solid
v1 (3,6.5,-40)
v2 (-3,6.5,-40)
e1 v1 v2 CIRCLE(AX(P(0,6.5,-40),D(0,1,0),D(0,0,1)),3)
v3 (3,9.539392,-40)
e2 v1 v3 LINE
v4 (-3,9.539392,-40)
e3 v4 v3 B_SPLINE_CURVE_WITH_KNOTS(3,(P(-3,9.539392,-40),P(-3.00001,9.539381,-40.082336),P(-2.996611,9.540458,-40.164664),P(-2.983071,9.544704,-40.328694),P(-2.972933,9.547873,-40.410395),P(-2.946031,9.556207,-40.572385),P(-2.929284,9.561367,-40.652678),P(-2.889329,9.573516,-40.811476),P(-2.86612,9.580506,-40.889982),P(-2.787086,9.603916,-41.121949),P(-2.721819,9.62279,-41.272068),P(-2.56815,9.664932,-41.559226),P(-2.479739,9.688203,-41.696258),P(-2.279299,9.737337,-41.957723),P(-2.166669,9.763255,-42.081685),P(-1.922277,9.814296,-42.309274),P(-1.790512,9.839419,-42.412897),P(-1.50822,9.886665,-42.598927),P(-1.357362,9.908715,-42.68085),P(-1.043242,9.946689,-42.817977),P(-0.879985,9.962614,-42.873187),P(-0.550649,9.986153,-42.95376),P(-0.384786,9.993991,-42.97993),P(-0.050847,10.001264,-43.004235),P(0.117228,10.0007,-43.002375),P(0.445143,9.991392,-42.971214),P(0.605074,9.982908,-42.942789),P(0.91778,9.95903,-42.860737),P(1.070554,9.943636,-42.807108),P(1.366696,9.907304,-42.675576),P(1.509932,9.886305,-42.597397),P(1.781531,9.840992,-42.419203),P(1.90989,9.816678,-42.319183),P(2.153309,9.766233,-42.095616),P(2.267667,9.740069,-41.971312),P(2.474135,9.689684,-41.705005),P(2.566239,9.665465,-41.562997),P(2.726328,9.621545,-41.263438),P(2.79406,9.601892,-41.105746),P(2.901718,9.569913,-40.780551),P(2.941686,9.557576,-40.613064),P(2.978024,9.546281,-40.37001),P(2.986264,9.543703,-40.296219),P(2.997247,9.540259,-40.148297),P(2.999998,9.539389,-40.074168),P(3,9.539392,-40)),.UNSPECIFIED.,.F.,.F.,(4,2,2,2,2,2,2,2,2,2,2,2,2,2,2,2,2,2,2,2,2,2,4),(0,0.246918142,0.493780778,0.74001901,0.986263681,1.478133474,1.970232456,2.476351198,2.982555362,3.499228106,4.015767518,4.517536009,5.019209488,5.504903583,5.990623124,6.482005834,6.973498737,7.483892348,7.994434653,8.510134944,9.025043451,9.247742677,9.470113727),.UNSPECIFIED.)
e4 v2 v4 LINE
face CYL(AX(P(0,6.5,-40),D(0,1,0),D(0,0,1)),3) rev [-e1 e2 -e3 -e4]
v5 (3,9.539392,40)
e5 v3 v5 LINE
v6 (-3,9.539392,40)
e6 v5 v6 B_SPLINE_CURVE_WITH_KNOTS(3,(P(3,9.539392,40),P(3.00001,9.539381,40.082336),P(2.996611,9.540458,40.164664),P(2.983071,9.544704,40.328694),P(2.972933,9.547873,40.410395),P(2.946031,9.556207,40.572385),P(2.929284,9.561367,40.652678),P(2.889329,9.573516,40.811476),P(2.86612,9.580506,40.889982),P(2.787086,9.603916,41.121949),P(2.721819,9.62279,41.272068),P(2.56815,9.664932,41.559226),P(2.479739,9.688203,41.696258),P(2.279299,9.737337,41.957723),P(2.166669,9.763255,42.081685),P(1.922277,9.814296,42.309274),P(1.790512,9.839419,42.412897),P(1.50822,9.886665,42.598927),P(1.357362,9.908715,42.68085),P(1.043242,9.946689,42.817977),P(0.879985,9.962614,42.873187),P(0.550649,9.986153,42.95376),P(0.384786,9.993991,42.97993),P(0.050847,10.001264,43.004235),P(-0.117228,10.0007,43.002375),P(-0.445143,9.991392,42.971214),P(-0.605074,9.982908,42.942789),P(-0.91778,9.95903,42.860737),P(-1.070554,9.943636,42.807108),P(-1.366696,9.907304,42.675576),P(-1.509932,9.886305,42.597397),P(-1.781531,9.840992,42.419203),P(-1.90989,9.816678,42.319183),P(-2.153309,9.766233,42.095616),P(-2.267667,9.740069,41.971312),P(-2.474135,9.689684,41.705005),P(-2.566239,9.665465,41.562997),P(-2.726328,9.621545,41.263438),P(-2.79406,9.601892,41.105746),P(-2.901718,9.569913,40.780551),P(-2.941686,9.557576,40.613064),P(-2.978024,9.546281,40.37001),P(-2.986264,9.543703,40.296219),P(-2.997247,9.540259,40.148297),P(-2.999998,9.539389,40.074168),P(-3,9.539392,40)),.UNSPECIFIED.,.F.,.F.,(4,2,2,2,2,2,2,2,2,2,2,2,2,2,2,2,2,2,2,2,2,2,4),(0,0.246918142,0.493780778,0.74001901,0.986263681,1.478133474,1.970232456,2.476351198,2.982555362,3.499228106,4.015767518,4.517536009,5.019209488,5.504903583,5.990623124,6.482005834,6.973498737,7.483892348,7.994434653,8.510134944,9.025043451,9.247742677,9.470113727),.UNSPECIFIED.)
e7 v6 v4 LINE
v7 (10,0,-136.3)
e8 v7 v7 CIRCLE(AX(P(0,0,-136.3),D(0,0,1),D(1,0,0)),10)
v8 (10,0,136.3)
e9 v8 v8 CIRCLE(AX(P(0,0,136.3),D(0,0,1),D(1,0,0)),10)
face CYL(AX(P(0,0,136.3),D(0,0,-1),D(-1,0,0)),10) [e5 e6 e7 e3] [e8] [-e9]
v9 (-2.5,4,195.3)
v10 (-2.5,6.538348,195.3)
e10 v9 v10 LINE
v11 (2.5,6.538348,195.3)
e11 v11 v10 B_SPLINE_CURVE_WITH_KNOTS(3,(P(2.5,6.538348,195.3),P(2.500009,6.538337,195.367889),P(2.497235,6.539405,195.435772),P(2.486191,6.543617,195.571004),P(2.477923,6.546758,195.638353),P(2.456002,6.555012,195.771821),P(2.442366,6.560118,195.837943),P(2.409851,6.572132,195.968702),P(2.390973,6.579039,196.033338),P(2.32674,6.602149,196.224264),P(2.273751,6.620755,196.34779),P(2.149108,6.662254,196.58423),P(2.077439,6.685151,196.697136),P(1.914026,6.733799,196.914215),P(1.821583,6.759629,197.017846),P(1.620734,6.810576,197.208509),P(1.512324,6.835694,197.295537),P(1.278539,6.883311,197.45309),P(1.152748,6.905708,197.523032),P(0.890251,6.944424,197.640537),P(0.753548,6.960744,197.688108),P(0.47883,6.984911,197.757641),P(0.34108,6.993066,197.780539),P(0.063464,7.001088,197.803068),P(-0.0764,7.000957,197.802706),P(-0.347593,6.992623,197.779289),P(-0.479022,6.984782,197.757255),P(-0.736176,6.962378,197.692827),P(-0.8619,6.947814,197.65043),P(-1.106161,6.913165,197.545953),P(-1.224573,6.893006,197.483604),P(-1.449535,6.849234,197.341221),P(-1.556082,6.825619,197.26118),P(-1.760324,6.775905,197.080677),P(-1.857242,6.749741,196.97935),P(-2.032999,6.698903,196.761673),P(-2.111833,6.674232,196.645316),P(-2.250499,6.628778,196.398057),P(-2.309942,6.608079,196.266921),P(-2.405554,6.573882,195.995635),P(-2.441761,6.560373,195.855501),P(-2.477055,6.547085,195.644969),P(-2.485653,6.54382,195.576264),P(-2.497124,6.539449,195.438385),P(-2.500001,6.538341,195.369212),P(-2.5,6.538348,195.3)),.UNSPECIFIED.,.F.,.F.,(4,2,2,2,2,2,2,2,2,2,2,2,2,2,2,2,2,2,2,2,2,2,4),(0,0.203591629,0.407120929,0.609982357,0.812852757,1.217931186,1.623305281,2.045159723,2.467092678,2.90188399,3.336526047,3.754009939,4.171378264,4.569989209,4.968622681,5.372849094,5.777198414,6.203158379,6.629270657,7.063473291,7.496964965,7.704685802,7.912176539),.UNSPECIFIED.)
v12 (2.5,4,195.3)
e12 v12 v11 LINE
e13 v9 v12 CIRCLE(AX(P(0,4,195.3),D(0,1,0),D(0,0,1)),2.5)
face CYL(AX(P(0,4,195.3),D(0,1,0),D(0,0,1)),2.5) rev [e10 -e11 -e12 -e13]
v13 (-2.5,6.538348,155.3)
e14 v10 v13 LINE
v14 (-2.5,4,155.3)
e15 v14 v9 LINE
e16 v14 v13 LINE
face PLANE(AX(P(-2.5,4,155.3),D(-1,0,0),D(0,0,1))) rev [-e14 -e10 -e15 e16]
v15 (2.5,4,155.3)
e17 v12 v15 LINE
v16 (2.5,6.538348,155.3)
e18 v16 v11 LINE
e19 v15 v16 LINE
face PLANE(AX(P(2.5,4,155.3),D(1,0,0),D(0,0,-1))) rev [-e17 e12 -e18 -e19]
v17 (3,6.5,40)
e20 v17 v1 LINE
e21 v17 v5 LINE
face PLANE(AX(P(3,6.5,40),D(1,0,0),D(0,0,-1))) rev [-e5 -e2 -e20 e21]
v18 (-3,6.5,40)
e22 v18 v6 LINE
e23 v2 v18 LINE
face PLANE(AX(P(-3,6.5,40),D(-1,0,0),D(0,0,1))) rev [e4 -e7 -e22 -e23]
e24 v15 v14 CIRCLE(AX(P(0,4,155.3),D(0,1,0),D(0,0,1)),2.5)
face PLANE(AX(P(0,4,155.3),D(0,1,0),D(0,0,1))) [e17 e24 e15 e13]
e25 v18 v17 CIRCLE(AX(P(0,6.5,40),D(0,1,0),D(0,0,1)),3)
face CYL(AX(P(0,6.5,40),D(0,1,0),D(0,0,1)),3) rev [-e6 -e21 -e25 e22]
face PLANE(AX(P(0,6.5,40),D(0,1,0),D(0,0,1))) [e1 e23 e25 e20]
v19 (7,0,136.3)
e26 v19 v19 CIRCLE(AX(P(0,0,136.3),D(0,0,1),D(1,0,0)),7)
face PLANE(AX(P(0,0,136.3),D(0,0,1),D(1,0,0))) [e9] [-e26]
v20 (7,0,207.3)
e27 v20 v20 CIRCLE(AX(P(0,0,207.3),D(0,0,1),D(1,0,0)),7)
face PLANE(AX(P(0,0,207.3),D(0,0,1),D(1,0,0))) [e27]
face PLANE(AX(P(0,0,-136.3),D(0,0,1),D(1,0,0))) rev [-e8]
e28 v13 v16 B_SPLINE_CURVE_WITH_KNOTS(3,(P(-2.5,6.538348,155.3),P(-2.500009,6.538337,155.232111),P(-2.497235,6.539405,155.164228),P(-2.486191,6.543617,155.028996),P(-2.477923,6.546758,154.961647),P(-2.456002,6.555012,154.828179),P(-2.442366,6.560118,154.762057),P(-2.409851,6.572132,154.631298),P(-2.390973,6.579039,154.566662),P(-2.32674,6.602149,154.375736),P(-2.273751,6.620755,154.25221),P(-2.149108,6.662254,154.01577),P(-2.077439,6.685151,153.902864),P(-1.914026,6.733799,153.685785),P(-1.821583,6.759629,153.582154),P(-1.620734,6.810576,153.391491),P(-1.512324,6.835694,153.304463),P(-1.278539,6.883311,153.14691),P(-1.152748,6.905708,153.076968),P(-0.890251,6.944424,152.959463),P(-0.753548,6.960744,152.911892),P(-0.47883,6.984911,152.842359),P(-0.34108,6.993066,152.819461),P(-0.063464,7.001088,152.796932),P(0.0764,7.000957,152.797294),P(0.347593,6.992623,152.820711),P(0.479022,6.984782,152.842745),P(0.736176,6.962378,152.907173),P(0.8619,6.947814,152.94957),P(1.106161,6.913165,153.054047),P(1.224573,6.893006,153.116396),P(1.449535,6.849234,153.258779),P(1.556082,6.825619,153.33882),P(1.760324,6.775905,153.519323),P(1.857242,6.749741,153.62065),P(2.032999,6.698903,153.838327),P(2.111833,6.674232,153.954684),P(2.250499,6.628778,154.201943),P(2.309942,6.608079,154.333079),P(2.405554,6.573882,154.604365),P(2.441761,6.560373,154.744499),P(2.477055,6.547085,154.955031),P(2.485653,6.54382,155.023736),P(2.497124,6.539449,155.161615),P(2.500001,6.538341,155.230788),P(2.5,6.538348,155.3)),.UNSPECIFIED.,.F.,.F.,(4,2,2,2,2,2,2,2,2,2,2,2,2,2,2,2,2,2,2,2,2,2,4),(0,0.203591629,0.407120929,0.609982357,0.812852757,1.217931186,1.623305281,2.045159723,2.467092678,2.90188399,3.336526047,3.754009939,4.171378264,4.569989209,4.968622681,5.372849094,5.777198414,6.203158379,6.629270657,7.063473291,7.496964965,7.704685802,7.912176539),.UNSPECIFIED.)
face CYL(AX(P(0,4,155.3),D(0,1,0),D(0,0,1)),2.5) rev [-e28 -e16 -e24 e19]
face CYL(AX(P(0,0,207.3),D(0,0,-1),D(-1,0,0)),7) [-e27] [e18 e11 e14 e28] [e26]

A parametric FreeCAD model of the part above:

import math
import FreeCAD as App
import Part
import Sketcher

V = App.Vector

doc = App.newDocument("Part")
body = doc.addObject("PartDesign::Body", "Body")

# Sketch on XY plane
sketch1 = doc.addObject("Sketcher::SketchObject", "Sketch")
body.addObject(sketch1)
sketch1.AttachmentSupport = (doc.XY_Plane, [""])
sketch1.MapMode = "FlatFace"
sketch1.addGeometry(Part.Circle(V(0, 0, 0), V(0, 0, 1), 10), False)
sketch1.addConstraint([
    Sketcher.Constraint("Coincident", 0, 3, -1, 1),
    Sketcher.Constraint("Diameter", 0, 20.0),
])
pad1 = doc.addObject("PartDesign::Pad", "Pad")
body.addObject(pad1)
pad1.Profile = sketch1
pad1.Length = 272.6
pad1.Midplane = True

# Sketch on XY plane
sketch2 = doc.addObject("Sketcher::SketchObject", "Sketch001")
body.addObject(sketch2)
sketch2.AttachmentSupport = (doc.XY_Plane, [""])
sketch2.MapMode = "FlatFace"
sketch2.AttachmentOffset = App.Placement(V(0, 0, 136.3), App.Rotation())
sketch2.addGeometry(Part.Circle(V(0, 0, 0), V(0, 0, 1), 7), False)
sketch2.addConstraint([
    Sketcher.Constraint("Coincident", 0, 3, -1, 1),
    Sketcher.Constraint("Diameter", 0, 14.0),
])
pad2 = doc.addObject("PartDesign::Pad", "Pad001")
body.addObject(pad2)
pad2.Profile = sketch2
pad2.Length = 71

# Sketch on XZ plane
sketch3 = doc.addObject("Sketcher::SketchObject", "Sketch002")
body.addObject(sketch3)
sketch3.AttachmentSupport = (doc.XZ_Plane, [""])
sketch3.MapMode = "FlatFace"
sketch3.AttachmentOffset = App.Placement(V(0, 0, -7), App.Rotation())
sketch3.addGeometry([
    Part.LineSegment(V(2.5, 195.3, 0), V(2.5, 155.3, 0)),
    Part.ArcOfCircle(Part.Circle(V(0, 155.3, 0), V(0, 0, 1), 2.5), math.radians(180), math.radians(360)),
    Part.LineSegment(V(-2.5, 155.3, 0), V(-2.5, 195.3, 0)),
    Part.ArcOfCircle(Part.Circle(V(0, 195.3, 0), V(0, 0, 1), 2.5), math.radians(0), math.radians(180)),
], False)
sketch3.addConstraint([
    Sketcher.Constraint("Tangent", 0, 2, 1, 2),
    Sketcher.Constraint("Tangent", 1, 1, 2, 1),
    Sketcher.Constraint("Tangent", 2, 2, 3, 2),
    Sketcher.Constraint("Tangent", 3, 1, 0, 1),
    Sketcher.Constraint("Vertical", 0),
    Sketcher.Constraint("Vertical", 2),
    Sketcher.Constraint("PointOnObject", 1, 3, -2),
    Sketcher.Constraint("Radius", 1, 2.5),
    Sketcher.Constraint("DistanceY", 0, 2, 0, 1, 40.0),
    Sketcher.Constraint("DistanceY", -1, 1, 1, 3, 155.3),
])
pocket1 = doc.addObject("PartDesign::Pocket", "Pocket")
body.addObject(pocket1)
pocket1.Profile = sketch3
pocket1.Length = 3
pocket1.Reversed = True

# Sketch on XZ plane
sketch4 = doc.addObject("Sketcher::SketchObject", "Sketch003")
body.addObject(sketch4)
sketch4.AttachmentSupport = (doc.XZ_Plane, [""])
sketch4.MapMode = "FlatFace"
sketch4.AttachmentOffset = App.Placement(V(0, 0, -10), App.Rotation())
sketch4.addGeometry([
    Part.LineSegment(V(-3, -40, 0), V(-3, 40, 0)),
    Part.ArcOfCircle(Part.Circle(V(0, 40, 0), V(0, 0, 1), 3), math.radians(0), math.radians(180)),
    Part.LineSegment(V(3, 40, 0), V(3, -40, 0)),
    Part.ArcOfCircle(Part.Circle(V(0, -40, 0), V(0, 0, 1), 3), math.radians(180), math.radians(360)),
], False)
sketch4.addConstraint([
    Sketcher.Constraint("Tangent", 0, 2, 1, 2),
    Sketcher.Constraint("Tangent", 1, 1, 2, 1),
    Sketcher.Constraint("Tangent", 2, 2, 3, 2),
    Sketcher.Constraint("Tangent", 3, 1, 0, 1),
    Sketcher.Constraint("Vertical", 0),
    Sketcher.Constraint("Vertical", 2),
    Sketcher.Constraint("Symmetric", 1, 3, 3, 3, -1, 1),
    Sketcher.Constraint("Radius", 1, 3.0),
    Sketcher.Constraint("DistanceY", 0, 1, 0, 2, 80.0),
])
pocket2 = doc.addObject("PartDesign::Pocket", "Pocket001")
body.addObject(pocket2)
pocket2.Profile = sketch4
pocket2.Length = 3.5
pocket2.Reversed = True

doc.recompute()
